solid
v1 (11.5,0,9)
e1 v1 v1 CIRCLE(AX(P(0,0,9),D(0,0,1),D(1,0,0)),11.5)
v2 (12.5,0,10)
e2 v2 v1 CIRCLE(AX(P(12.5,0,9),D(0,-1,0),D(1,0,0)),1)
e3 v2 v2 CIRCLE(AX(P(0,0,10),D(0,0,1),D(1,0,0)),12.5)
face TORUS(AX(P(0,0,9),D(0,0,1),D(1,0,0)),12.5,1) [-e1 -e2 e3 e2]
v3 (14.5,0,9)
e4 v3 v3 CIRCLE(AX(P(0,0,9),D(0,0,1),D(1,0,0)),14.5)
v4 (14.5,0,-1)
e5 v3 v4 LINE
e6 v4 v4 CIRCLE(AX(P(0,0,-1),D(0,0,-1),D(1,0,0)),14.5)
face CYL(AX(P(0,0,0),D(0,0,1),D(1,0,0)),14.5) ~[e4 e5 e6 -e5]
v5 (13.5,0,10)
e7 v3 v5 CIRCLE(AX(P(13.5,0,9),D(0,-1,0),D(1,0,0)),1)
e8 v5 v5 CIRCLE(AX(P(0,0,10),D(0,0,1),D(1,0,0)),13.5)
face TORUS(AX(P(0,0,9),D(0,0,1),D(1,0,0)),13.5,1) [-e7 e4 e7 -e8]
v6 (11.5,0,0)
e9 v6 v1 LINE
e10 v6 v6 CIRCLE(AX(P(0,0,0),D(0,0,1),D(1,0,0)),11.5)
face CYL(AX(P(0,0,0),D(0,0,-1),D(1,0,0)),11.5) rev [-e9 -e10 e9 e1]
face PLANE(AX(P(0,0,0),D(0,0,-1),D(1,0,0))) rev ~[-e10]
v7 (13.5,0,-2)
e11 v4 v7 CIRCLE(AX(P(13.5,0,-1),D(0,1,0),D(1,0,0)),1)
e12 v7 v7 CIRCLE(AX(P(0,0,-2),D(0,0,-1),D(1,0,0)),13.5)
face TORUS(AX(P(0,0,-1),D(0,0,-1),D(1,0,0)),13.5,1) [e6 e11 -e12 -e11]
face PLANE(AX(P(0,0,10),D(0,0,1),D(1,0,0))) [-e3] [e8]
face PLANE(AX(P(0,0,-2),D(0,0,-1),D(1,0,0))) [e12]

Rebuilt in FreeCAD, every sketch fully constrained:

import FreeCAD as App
import Part
import Sketcher
from FreeCAD import Vector


def edges_at(feature, points):
    """Names of the edges that pass closest to the given points."""
    edges = feature.Shape.Edges
    near = lambda p: min(range(len(edges)), key=lambda i: edges[i].distToShape(Part.Vertex(*p))[0])
    return sorted({f"Edge{near(p) + 1}" for p in points})

doc = App.newDocument("Part")
body = doc.addObject("PartDesign::Body", "Body")

# Sketch on XY plane
sketch1 = body.newObject("Sketcher::SketchObject", "Sketch")
sketch1.AttachmentSupport = (doc.getObject("XY_Plane"), [""])
sketch1.MapMode = "FlatFace"
sketch1.addGeometry([
    Part.Circle(Vector(0, 0, 0), Vector(0, 0, 1), 14),
    Part.Circle(Vector(0, 0, 0), Vector(0, 0, 1), 12),
], False)
sketch1.addConstraint([
    Sketcher.Constraint("Coincident", 0, 3, -1, 1),
    Sketcher.Constraint("Coincident", 1, 3, -1, 1),
    Sketcher.Constraint("Diameter", 0, 29.0),
    Sketcher.Constraint("Diameter", 1, 23.0),
])
pad1 = body.newObject("PartDesign::Pad", "Pad")
pad1.Profile = sketch1
pad1.Length = 10

# Sketch on XY plane
sketch2 = body.newObject("Sketcher::SketchObject", "Sketch001")
sketch2.AttachmentSupport = (doc.getObject("XY_Plane"), [""])
sketch2.MapMode = "FlatFace"
sketch2.addGeometry(Part.Circle(Vector(0, 0, 0), Vector(0, 0, 1), 14), False)
sketch2.addConstraint([
    Sketcher.Constraint("Coincident", 0, 3, -1, 1),
    Sketcher.Constraint("Diameter", 0, 29.0),
])
pad2 = body.newObject("PartDesign::Pad", "Pad001")
pad2.Profile = sketch2
pad2.Length = 2
pad2.Reversed = True
doc.recompute()

fillet = body.newObject("PartDesign::Fillet", "Fillet")
fillet.Base = (pad2, edges_at(pad2, [(-14.5, 0, 10), (-11.5, 0, 10), (-14.5, 0, -2)]))
fillet.Radius = 1

doc.recompute()
